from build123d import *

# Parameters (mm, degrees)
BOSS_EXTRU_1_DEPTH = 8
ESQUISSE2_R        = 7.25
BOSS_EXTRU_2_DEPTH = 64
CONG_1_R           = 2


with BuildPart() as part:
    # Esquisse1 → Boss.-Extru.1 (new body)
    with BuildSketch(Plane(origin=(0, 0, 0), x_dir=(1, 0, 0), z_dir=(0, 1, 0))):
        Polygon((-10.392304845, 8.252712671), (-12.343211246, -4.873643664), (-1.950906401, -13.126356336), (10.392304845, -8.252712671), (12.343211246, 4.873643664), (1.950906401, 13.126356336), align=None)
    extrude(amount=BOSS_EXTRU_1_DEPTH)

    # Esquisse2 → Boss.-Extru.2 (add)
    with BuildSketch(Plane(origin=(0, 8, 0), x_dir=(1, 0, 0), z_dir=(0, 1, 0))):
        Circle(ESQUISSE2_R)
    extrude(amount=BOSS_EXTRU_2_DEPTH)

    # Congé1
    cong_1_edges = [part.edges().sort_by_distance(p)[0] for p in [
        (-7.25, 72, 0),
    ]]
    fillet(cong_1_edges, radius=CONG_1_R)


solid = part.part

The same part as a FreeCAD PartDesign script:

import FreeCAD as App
import Part
import Sketcher


def edges_at(feature, points):
    """Names of the edges that pass closest to the given points."""
    edges = feature.Shape.Edges
    near = lambda p: min(range(len(edges)), key=lambda i: edges[i].distToShape(Part.Vertex(*p))[0])
    return sorted({f"Edge{near(p) + 1}" for p in points})

doc = App.newDocument("Part")
body = doc.addObject("PartDesign::Body", "Body")

# Sketch on XZ plane
sketch1 = body.newObject("Sketcher::SketchObject", "Sketch")
sketch1.AttachmentSupport = (doc.getObject("XZ_Plane"), [""])
sketch1.MapMode = "FlatFace"
sketch1.addGeometry(Part.LineSegment(App.Vector(-10, -8, 0), App.Vector(-12, 5, 0)), False)
sketch1.addGeometry(Part.LineSegment(App.Vector(-12, 5, 0), App.Vector(-2, 13, 0)), False)
sketch1.addGeometry(Part.LineSegment(App.Vector(-2, 13, 0), App.Vector(10, 8, 0)), False)
sketch1.addGeometry(Part.LineSegment(App.Vector(10, 8, 0), App.Vector(12, -5, 0)), False)
sketch1.addGeometry(Part.LineSegment(App.Vector(12, -5, 0), App.Vector(2, -13, 0)), False)
sketch1.addGeometry(Part.LineSegment(App.Vector(2, -13, 0), App.Vector(-10, -8, 0)), False)
sketch1.addConstraint(Sketcher.Constraint("Coincident", 0, 2, 1, 1))
sketch1.addConstraint(Sketcher.Constraint("Coincident", 1, 2, 2, 1))
sketch1.addConstraint(Sketcher.Constraint("Coincident", 2, 2, 3, 1))
sketch1.addConstraint(Sketcher.Constraint("Coincident", 3, 2, 4, 1))
sketch1.addConstraint(Sketcher.Constraint("Coincident", 4, 2, 5, 1))
sketch1.addConstraint(Sketcher.Constraint("Coincident", 5, 2, 0, 1))
sketch1.addConstraint(Sketcher.Constraint("Symmetric", 0, 2, 3, 2, -1, 1))
sketch1.addConstraint(Sketcher.Constraint("Symmetric", 1, 2, 4, 2, -1, 1))
sketch1.addConstraint(Sketcher.Constraint("Symmetric", 2, 2, 5, 2, -1, 1))
sketch1.addConstraint(Sketcher.Constraint("Equal", 0, 1))
sketch1.addConstraint(Sketcher.Constraint("Equal", 1, 2))
sketch1.addConstraint(Sketcher.Constraint("DistanceY", 3, 2, 1, 2, 18.0))
sketch1.addConstraint(Sketcher.Constraint("DistanceX", 4, 2, 2, 2, 8.441398))
sketch1.addConstraint(Sketcher.Constraint("Distance", 0, 13.270541))
sketch1.addConstraint(Sketcher.Constraint("DistanceX", 0, 2, -1, 1, 12.343211))
pad1 = body.newObject("PartDesign::Pad", "Pad")
pad1.Profile = sketch1
pad1.Length = 8
pad1.Reversed = True

# Sketch on XZ plane
sketch2 = body.newObject("Sketcher::SketchObject", "Sketch001")
sketch2.AttachmentSupport = (doc.getObject("XZ_Plane"), [""])
sketch2.MapMode = "FlatFace"
sketch2.AttachmentOffset = App.Placement(App.Vector(0, 0, -8), App.Rotation())
sketch2.addGeometry(Part.Circle(App.Vector(0, 0, 0), App.Vector(0, 0, 1), 7), False)
sketch2.addConstraint(Sketcher.Constraint("Coincident", 0, 3, -1, 1))
sketch2.addConstraint(Sketcher.Constraint("Diameter", 0, 14.5))
pad2 = body.newObject("PartDesign::Pad", "Pad001")
pad2.Profile = sketch2
pad2.Length = 64
pad2.Reversed = True
doc.recompute()

fillet = body.newObject("PartDesign::Fillet", "Fillet")
fillet.Base = (pad2, edges_at(pad2, [(-7.25, 72, 0)]))
fillet.Radius = 2

doc.recompute()
